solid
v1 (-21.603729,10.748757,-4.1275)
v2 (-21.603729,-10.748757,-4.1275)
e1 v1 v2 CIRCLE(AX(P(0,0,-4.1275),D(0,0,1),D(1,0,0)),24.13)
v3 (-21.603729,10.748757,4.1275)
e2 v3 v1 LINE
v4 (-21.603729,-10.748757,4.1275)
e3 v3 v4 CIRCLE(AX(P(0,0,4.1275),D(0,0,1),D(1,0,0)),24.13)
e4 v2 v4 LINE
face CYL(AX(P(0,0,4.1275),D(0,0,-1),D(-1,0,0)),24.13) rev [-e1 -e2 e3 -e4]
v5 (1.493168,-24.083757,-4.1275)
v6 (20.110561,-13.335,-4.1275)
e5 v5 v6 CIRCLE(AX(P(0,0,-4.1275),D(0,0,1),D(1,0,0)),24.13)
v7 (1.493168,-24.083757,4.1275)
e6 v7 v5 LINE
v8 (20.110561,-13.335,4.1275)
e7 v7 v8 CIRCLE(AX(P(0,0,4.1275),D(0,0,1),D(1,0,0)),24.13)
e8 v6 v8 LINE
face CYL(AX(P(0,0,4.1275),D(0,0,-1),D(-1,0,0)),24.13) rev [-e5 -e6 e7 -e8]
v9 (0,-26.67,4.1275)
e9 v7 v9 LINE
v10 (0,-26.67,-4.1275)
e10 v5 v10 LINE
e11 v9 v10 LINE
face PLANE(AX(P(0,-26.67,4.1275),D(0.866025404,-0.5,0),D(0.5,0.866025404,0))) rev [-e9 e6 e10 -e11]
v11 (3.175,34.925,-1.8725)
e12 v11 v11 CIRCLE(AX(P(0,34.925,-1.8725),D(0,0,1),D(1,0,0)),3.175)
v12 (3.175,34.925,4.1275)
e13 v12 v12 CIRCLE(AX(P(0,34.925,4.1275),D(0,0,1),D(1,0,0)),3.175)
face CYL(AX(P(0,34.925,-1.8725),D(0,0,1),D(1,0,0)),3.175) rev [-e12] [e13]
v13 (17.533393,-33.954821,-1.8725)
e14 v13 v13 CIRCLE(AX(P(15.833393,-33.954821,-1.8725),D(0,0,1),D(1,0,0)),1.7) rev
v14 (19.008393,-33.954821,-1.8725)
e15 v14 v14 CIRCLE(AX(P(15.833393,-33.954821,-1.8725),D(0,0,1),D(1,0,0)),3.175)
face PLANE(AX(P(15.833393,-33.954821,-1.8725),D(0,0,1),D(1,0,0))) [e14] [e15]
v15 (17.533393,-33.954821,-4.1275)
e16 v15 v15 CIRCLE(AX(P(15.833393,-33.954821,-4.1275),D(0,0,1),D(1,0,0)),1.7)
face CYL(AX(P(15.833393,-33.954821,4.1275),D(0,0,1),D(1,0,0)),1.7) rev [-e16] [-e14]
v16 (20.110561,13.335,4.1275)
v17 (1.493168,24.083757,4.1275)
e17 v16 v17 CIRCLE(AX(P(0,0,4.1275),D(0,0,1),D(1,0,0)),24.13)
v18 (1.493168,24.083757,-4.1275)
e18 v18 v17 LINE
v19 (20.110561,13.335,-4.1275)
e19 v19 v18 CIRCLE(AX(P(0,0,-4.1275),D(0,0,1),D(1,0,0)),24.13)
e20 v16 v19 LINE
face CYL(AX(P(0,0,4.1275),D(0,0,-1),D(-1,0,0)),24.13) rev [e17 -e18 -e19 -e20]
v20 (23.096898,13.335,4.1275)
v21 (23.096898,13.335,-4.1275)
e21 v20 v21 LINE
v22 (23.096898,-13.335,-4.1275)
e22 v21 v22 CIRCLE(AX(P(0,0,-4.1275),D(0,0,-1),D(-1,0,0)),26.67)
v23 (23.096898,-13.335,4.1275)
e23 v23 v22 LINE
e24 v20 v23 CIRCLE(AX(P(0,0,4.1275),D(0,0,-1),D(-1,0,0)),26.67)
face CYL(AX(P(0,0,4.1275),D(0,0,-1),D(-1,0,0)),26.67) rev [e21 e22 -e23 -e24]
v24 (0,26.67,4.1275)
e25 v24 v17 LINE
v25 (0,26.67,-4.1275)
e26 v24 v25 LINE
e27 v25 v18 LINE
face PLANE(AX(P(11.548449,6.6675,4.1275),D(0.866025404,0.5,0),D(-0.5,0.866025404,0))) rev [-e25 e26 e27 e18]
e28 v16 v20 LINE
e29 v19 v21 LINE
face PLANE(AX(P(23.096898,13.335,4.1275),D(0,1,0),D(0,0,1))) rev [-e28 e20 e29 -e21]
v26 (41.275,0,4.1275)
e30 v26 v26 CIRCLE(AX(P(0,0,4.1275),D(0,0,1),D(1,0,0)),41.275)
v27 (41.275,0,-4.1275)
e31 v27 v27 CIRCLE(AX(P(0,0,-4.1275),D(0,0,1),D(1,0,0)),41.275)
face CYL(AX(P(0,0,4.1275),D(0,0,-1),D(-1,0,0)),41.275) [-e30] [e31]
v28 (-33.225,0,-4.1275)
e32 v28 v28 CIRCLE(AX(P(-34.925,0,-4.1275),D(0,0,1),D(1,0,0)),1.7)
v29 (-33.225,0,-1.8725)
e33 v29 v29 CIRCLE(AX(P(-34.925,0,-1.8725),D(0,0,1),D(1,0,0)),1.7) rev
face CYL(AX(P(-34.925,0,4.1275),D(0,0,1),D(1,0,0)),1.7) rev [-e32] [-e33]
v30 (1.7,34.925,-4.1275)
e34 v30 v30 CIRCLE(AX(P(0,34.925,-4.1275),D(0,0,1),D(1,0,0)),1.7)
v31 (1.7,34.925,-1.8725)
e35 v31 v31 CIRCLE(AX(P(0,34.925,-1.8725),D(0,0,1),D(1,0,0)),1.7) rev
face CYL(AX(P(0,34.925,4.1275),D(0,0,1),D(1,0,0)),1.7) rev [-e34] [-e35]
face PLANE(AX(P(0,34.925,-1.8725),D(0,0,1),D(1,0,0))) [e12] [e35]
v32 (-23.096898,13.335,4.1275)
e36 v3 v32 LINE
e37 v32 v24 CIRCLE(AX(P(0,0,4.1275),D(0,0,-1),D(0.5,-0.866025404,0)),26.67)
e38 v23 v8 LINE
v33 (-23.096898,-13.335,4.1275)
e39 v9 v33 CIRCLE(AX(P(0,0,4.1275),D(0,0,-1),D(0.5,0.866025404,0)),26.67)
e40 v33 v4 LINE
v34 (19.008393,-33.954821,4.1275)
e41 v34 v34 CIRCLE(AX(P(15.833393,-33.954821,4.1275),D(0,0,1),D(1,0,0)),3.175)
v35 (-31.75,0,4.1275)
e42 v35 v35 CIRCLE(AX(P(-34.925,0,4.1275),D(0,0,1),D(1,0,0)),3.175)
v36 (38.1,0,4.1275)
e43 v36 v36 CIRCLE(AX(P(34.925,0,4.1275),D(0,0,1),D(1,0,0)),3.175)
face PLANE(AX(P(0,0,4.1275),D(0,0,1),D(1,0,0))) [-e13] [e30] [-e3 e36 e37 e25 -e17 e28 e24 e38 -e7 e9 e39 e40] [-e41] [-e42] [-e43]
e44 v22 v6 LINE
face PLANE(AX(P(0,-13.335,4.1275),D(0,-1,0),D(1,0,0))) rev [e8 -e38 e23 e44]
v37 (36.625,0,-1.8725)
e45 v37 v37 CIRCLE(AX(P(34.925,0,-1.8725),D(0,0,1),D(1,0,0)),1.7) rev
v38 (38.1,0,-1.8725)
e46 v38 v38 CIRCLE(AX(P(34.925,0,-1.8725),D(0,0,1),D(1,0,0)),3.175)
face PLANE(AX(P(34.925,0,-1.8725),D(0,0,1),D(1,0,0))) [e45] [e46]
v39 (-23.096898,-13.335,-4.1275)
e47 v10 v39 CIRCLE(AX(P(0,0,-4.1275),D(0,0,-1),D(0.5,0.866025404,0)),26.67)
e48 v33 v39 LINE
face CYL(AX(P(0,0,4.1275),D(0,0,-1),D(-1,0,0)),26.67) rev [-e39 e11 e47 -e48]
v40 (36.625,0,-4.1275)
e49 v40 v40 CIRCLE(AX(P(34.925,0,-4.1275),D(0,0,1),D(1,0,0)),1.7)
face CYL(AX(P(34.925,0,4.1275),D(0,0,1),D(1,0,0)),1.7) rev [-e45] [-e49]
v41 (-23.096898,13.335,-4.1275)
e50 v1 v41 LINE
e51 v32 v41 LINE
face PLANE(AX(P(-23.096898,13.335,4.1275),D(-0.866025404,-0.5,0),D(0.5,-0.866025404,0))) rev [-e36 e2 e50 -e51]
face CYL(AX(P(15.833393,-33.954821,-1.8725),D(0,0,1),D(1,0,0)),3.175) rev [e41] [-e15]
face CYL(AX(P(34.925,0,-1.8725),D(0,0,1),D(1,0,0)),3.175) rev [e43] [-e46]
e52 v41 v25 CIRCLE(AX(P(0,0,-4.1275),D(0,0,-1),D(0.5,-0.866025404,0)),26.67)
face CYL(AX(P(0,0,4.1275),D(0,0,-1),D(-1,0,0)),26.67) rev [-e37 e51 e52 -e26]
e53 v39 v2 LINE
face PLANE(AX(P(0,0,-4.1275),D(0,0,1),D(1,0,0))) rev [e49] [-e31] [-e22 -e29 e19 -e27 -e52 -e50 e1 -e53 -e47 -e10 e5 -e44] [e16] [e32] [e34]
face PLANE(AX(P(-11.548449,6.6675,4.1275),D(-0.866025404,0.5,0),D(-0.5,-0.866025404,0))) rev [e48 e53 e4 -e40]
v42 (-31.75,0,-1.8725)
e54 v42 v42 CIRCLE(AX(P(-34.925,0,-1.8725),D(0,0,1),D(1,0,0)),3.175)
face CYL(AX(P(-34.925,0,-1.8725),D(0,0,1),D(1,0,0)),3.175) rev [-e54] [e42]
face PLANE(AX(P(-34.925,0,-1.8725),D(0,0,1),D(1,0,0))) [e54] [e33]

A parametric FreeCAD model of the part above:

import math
import FreeCAD as App
import Part
import Sketcher
from FreeCAD import Vector
Q = App.Units.Quantity

doc = App.newDocument("Part")
body = doc.addObject("PartDesign::Body", "Body")

sketch1 = body.newObject("Sketcher::SketchObject", "Sketch")
sketch1.AttachmentSupport = (doc.getObject("XY_Plane"), [""])
sketch1.MapMode = "FlatFace"
sketch1.addGeometry([
    Part.Circle(Vector(0, 0, 0), Vector(0, 0, 1), 41.275),
    Part.Circle(Vector(0, 0, 0), Vector(0, 0, 1), 24.13),
], False)
sketch1.addConstraint([
    Sketcher.Constraint("Coincident", 0, 3, -1, 1),
    Sketcher.Constraint("Coincident", 1, 3, -1, 1),
    Sketcher.Constraint("Diameter", 1, Q("1.9 in")),
    Sketcher.Constraint("Diameter", 0, Q("3.25 in")),
])
pad1 = body.newObject("PartDesign::Pad", "Pad")
pad1.Profile = sketch1
pad1.Length = Q("0.325 in")
pad1.Midplane = True

sketch2 = body.newObject("Sketcher::SketchObject", "Sketch001")
sketch2.AttachmentSupport = (doc.getObject("XY_Plane"), [""])
sketch2.MapMode = "FlatFace"
sketch2.AttachmentOffset = App.Placement(Vector(0, 0, 0.1625 * 25.4), App.Rotation())
sketch2.addGeometry([
    Part.Circle(Vector(-34.925, 0, 0), Vector(0, 0, 1), 1.7),
    Part.Circle(Vector(0, 34.925, 0), Vector(0, 0, 1), 1.7),
    Part.Circle(Vector(34.925, 0, 0), Vector(0, 0, 1), 1.7),
], False)
sketch2.addConstraint([
    Sketcher.Constraint("Equal", 0, 1),
    Sketcher.Constraint("Equal", 1, 2),
    Sketcher.Constraint("Symmetric", 0, 3, 2, 3, -1, 1),
    Sketcher.Constraint("PointOnObject", 0, 3, -1),
    Sketcher.Constraint("PointOnObject", 1, 3, -2),
    Sketcher.Constraint("Diameter", 0, 3.4),
    Sketcher.Constraint("DistanceX", 0, 3, 2, 3, Q("2.75 in")),
    Sketcher.Constraint("DistanceY", -1, 1, 1, 3, Q("1.375 in")),
])
doc.recompute()
hole = body.newObject("PartDesign::Hole", "Hole")
hole.Profile = sketch2
hole.ThreadType = "None"
hole.Diameter = 3.4
hole.DepthType = "ThroughAll"

sketch3 = body.newObject("Sketcher::SketchObject", "Sketch002")
sketch3.AttachmentSupport = (doc.getObject("XY_Plane"), [""])
sketch3.MapMode = "FlatFace"
sketch3.AttachmentOffset = App.Placement(Vector(0, 0, -0.1625 * 25.4), App.Rotation())
sketch3.addGeometry([
    Part.LineSegment(Vector(0, 13.335, 0), Vector(23.096898, 13.335, 0)),
    Part.ArcOfCircle(Part.Circle(Vector(0, 0, 0), Vector(0, 0, 1), 26.67), math.radians(-30), math.radians(30)),
    Part.LineSegment(Vector(23.096898, -13.335, 0), Vector(0, -13.335, 0)),
    Part.LineSegment(Vector(0, -13.335, 0), Vector(0, 13.335, 0)),
], False)
sketch3.addConstraint([
    Sketcher.Constraint("Coincident", 0, 2, 1, 2),
    Sketcher.Constraint("Coincident", 1, 1, 2, 1),
    Sketcher.Constraint("Coincident", 2, 2, 3, 1),
    Sketcher.Constraint("Coincident", 3, 2, 0, 1),
    Sketcher.Constraint("Horizontal", 0),
    Sketcher.Constraint("Horizontal", 2),
    Sketcher.Constraint("Vertical", 3),
    Sketcher.Constraint("Coincident", 1, 3, -1, 1),
    Sketcher.Constraint("Symmetric", 2, 2, 3, 2, -1, 1),
    Sketcher.Constraint("Radius", 1, Q("1.05 in")),
    Sketcher.Constraint("DistanceY", 3, 1, 3, 2, Q("1.05 in")),
])
pocket1 = body.newObject("PartDesign::Pocket", "Pocket")
pocket1.Profile = sketch3
pocket1.Type = "ThroughAll"
pocket1.Reversed = True
doc.recompute()

polarpattern = body.newObject("PartDesign::PolarPattern", "PolarPattern")
polarpattern.Originals = [pocket1]
polarpattern.Axis = (doc.getObject("Z_Axis"), [""])
polarpattern.Angle = 360
polarpattern.Occurrences = 3
body.Tip = polarpattern

sketch4 = body.newObject("Sketcher::SketchObject", "Sketch003")
sketch4.AttachmentSupport = (doc.getObject("XY_Plane"), [""])
sketch4.MapMode = "FlatFace"
sketch4.AttachmentOffset = App.Placement(Vector(0, 0, 0.1625 * 25.4), App.Rotation())
sketch4.addGeometry(Part.Circle(Vector(15.833393, -33.954821, 0), Vector(0, 0, 1), 1.7), False)
sketch4.addConstraint([
    Sketcher.Constraint("Diameter", 0, 3.4),
    Sketcher.Constraint("DistanceY", 0, 3, -1, 1, 33.954821),
    Sketcher.Constraint("DistanceX", -1, 1, 0, 3, 15.833393),
])
doc.recompute()
hole2 = body.newObject("PartDesign::Hole", "Hole001")
hole2.Profile = sketch4
hole2.ThreadType = "None"
hole2.Diameter = 3.4
hole2.DepthType = "ThroughAll"

sketch5 = body.newObject("Sketcher::SketchObject", "Sketch004")
sketch5.AttachmentSupport = (doc.getObject("XY_Plane"), [""])
sketch5.MapMode = "FlatFace"
sketch5.AttachmentOffset = App.Placement(Vector(0, 0, 0.1625 * 25.4), App.Rotation())
sketch5.addGeometry([
    Part.Circle(Vector(0, 34.925, 0), Vector(0, 0, 1), 3.175),
    Part.Circle(Vector(34.925, 0, 0), Vector(0, 0, 1), 3.175),
    Part.Circle(Vector(15.833393, -33.954821, 0), Vector(0, 0, 1), 3.175),
    Part.Circle(Vector(-34.925, 0, 0), Vector(0, 0, 1), 3.175),
], False)
sketch5.addConstraint([
    Sketcher.Constraint("Equal", 0, 1),
    Sketcher.Constraint("Equal", 1, 2),
    Sketcher.Constraint("Equal", 2, 3),
    Sketcher.Constraint("Symmetric", 1, 3, 3, 3, -1, 1),
    Sketcher.Constraint("PointOnObject", 0, 3, -2),
    Sketcher.Constraint("PointOnObject", 1, 3, -1),
    Sketcher.Constraint("Diameter", 0, Q("0.25 in")),
    Sketcher.Constraint("DistanceX", 3, 3, 1, 3, Q("2.75 in")),
    Sketcher.Constraint("DistanceY", -1, 1, 0, 3, Q("1.375 in")),
    Sketcher.Constraint("DistanceY", 2, 3, -1, 1, 33.954821),
    Sketcher.Constraint("DistanceX", -1, 1, 2, 3, 15.833393),
])
pocket2 = body.newObject("PartDesign::Pocket", "Pocket001")
pocket2.Profile = sketch5
pocket2.Length = 6

doc.recompute()
